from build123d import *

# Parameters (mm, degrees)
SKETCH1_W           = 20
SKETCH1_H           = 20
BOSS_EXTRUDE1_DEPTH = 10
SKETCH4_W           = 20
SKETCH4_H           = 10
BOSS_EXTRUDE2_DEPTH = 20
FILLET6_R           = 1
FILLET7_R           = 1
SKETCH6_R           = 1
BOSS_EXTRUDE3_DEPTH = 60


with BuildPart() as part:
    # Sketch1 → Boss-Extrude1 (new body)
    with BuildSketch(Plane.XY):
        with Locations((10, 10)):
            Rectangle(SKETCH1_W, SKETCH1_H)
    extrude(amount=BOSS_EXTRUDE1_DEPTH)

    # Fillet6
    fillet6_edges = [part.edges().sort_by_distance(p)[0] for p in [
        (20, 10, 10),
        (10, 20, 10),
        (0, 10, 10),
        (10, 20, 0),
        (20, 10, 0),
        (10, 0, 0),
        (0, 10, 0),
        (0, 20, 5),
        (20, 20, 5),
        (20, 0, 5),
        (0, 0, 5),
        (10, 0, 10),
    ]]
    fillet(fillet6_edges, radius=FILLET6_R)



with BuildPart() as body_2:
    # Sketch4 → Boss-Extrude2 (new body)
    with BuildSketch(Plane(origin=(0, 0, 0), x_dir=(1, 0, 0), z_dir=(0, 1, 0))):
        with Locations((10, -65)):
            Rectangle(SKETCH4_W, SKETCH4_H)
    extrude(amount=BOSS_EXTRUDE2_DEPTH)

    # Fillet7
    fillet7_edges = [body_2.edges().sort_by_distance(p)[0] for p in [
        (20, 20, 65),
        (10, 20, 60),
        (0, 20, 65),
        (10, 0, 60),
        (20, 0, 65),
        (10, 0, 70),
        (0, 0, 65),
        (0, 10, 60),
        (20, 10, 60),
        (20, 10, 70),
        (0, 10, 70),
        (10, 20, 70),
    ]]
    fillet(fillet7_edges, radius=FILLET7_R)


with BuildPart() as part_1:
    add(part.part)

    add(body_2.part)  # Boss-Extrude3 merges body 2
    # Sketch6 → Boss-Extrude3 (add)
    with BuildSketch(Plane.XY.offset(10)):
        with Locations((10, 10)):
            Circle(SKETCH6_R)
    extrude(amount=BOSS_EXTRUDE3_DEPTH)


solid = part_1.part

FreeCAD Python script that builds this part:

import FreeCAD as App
import Part
import Sketcher
from FreeCAD import Vector

doc = App.newDocument("Part")
body = doc.addObject("PartDesign::Body", "Body")

# Sketch on XY plane
sketch1 = body.newObject("Sketcher::SketchObject", "Sketch")
sketch1.AttachmentSupport = (doc.getObject("XY_Plane"), [""])
sketch1.MapMode = "FlatFace"
sketch1.addGeometry([
    Part.LineSegment(Vector(0, 20, 0), Vector(0, 0, 0)),
    Part.LineSegment(Vector(0, 0, 0), Vector(20, 0, 0)),
    Part.LineSegment(Vector(20, 0, 0), Vector(20, 20, 0)),
    Part.LineSegment(Vector(20, 20, 0), Vector(0, 20, 0)),
], False)
sketch1.addConstraint([
    Sketcher.Constraint("Coincident", 0, 2, 1, 1),
    Sketcher.Constraint("Coincident", 1, 2, 2, 1),
    Sketcher.Constraint("Coincident", 2, 2, 3, 1),
    Sketcher.Constraint("Coincident", 3, 2, 0, 1),
    Sketcher.Constraint("Vertical", 0),
    Sketcher.Constraint("Horizontal", 1),
    Sketcher.Constraint("Vertical", 2),
    Sketcher.Constraint("Horizontal", 3),
    Sketcher.Constraint("Coincident", 0, 2, -1, 1),
    Sketcher.Constraint("Equal", 3, 0),
    Sketcher.Constraint("DistanceX", 1, 1, 1, 2, 20.0),
])
pad1 = body.newObject("PartDesign::Pad", "Pad")
pad1.Profile = sketch1
pad1.Length = 10
doc.recompute()

fillet = body.newObject("PartDesign::Fillet", "Fillet")
fillet.Base = (pad1, ["Edge1"])
fillet.UseAllEdges = True
fillet.Radius = 1
body2 = doc.addObject("PartDesign::Body", "Body001")

# Sketch on XZ plane
sketch2 = body2.newObject("Sketcher::SketchObject", "Sketch001")
sketch2.AttachmentSupport = (doc.getObject("XZ_Plane001"), [""])
sketch2.MapMode = "FlatFace"
sketch2.addGeometry([
    Part.LineSegment(Vector(0, 60, 0), Vector(0, 70, 0)),
    Part.LineSegment(Vector(0, 70, 0), Vector(20, 70, 0)),
    Part.LineSegment(Vector(20, 70, 0), Vector(20, 60, 0)),
    Part.LineSegment(Vector(20, 60, 0), Vector(0, 60, 0)),
], False)
sketch2.addConstraint([
    Sketcher.Constraint("Coincident", 0, 2, 1, 1),
    Sketcher.Constraint("Coincident", 1, 2, 2, 1),
    Sketcher.Constraint("Coincident", 2, 2, 3, 1),
    Sketcher.Constraint("Coincident", 3, 2, 0, 1),
    Sketcher.Constraint("Vertical", 0),
    Sketcher.Constraint("Horizontal", 1),
    Sketcher.Constraint("Vertical", 2),
    Sketcher.Constraint("Horizontal", 3),
    Sketcher.Constraint("PointOnObject", 0, 2, -2),
    Sketcher.Constraint("DistanceX", 1, 1, 1, 2, 20.0),
    Sketcher.Constraint("DistanceY", 0, 1, 0, 2, 10.0),
    Sketcher.Constraint("DistanceY", -1, 1, 0, 2, 70.0),
])
pad2 = body2.newObject("PartDesign::Pad", "Pad001")
pad2.Profile = sketch2
pad2.Length = 20
pad2.Reversed = True
doc.recompute()

fillet2 = body2.newObject("PartDesign::Fillet", "Fillet001")
fillet2.Base = (pad2, ["Edge1"])
fillet2.UseAllEdges = True
fillet2.Radius = 1
body.AllowCompound = True
doc.recompute()

boolean = body.newObject("PartDesign::Boolean", "Boolean")
boolean.Type = "Fuse"
boolean.addObjects([body2])

# Sketch on XY plane
sketch3 = body.newObject("Sketcher::SketchObject", "Sketch002")
sketch3.AttachmentSupport = (doc.getObject("XY_Plane"), [""])
sketch3.MapMode = "FlatFace"
sketch3.AttachmentOffset = App.Placement(Vector(0, 0, 10), App.Rotation())
sketch3.addGeometry(Part.Circle(Vector(10, 10, 0), Vector(0, 0, 1), 1), False)
sketch3.addConstraint([
    Sketcher.Constraint("Diameter", 0, 2.0),
    Sketcher.Constraint("DistanceX", -1, 1, 0, 3, 10.0),
    Sketcher.Constraint("DistanceY", -1, 1, 0, 3, 10.0),
])
pad3 = body.newObject("PartDesign::Pad", "Pad002")
pad3.Profile = sketch3
pad3.Length = 60

doc.recompute()
